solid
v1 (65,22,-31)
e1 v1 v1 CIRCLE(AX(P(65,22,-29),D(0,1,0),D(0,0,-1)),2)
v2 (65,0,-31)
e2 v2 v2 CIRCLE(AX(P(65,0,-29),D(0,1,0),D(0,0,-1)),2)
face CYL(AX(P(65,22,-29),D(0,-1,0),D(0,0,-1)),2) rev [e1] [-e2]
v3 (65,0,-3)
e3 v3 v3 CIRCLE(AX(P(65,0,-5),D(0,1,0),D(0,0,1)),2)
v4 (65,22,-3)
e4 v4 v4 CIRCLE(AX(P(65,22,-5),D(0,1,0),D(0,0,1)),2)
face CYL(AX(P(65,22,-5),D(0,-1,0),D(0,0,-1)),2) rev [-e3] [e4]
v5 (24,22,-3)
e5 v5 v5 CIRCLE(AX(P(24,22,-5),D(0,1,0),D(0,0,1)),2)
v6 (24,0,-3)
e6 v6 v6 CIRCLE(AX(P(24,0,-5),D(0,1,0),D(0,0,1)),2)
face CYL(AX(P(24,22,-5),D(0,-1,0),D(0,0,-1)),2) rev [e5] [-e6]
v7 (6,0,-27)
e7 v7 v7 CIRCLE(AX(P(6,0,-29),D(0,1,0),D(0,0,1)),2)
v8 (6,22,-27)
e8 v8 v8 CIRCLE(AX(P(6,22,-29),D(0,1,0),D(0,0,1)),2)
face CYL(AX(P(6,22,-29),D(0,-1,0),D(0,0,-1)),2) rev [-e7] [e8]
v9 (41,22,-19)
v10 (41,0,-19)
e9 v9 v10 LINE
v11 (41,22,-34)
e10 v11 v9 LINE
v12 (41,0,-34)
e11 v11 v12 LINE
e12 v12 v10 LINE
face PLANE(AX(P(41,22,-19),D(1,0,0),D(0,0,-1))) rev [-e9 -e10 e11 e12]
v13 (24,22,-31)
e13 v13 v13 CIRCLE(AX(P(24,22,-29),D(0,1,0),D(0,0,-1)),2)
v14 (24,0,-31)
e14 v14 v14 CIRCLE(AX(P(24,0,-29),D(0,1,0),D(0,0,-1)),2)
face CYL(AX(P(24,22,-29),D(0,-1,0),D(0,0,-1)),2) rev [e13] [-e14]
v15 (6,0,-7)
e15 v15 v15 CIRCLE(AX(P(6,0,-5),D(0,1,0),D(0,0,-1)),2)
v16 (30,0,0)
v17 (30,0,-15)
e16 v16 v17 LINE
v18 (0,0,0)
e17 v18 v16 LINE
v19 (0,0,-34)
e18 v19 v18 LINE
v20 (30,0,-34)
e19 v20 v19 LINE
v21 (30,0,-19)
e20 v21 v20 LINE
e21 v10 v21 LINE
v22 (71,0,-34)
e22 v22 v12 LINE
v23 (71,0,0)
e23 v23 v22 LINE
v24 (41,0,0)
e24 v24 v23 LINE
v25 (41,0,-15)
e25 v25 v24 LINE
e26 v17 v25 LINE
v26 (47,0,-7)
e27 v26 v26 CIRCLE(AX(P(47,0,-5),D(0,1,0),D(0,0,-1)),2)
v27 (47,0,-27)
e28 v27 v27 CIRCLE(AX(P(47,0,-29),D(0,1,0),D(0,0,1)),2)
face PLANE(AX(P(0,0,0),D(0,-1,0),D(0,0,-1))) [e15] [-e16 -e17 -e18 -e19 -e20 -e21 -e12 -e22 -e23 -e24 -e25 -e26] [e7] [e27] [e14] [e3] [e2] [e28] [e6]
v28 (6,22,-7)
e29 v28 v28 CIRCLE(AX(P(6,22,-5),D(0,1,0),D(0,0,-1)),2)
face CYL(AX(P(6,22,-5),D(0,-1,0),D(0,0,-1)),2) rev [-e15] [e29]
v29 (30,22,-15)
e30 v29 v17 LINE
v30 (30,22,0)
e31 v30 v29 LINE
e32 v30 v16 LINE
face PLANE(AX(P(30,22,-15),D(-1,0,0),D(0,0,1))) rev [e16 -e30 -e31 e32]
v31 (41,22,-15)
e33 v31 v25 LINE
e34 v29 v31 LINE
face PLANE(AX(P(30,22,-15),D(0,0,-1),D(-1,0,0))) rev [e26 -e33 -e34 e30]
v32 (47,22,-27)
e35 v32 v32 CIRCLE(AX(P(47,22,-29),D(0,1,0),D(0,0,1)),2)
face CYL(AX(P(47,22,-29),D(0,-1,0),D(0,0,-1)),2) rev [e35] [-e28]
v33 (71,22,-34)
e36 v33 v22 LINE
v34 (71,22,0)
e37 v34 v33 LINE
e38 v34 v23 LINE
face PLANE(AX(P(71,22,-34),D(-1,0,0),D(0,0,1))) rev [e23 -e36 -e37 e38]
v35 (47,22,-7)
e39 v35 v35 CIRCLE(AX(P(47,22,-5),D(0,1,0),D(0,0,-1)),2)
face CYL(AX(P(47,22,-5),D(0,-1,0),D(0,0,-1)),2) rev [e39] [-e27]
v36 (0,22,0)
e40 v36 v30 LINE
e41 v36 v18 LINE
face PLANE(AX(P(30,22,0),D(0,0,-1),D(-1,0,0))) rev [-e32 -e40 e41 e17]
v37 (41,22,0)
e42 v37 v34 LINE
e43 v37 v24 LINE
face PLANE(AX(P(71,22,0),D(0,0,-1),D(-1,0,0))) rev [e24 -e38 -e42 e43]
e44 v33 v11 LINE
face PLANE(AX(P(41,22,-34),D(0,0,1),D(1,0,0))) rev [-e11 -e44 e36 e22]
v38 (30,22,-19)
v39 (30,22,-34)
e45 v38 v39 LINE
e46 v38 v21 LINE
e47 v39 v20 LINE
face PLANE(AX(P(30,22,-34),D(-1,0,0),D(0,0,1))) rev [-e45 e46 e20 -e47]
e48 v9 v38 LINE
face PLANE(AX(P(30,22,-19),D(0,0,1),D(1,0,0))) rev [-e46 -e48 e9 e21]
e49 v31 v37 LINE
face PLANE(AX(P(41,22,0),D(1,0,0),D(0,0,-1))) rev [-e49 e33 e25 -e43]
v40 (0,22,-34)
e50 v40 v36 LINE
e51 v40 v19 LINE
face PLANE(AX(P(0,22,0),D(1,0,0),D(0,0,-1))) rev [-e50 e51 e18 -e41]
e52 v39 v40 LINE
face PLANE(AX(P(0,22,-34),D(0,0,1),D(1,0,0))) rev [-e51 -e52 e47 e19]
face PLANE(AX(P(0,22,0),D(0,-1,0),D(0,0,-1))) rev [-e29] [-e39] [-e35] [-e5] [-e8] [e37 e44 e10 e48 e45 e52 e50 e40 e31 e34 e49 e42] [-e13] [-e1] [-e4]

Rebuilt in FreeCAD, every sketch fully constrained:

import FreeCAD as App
import Part
import Sketcher
from FreeCAD import Vector
Q = App.Units.Quantity

doc = App.newDocument("Part")
body = doc.addObject("PartDesign::Body", "Body")

sketch1 = doc.addObject("Sketcher::SketchObject", "Sketch")
body.addObject(sketch1)
sketch1.AttachmentSupport = (doc.XZ_Plane, [""])
sketch1.MapMode = "FlatFace"
sketch1.addGeometry(Part.LineSegment(Vector(0, -34, 0), Vector(0, 0, 0)), False)
sketch1.addGeometry(Part.LineSegment(Vector(0, 0, 0), Vector(30, 0, 0)), False)
sketch1.addGeometry(Part.LineSegment(Vector(30, 0, 0), Vector(30, -15, 0)), False)
sketch1.addGeometry(Part.LineSegment(Vector(30, -15, 0), Vector(41, -15, 0)), False)
sketch1.addGeometry(Part.LineSegment(Vector(41, -15, 0), Vector(41, 0, 0)), False)
sketch1.addGeometry(Part.LineSegment(Vector(41, 0, 0), Vector(71, 0, 0)), False)
sketch1.addGeometry(Part.LineSegment(Vector(71, 0, 0), Vector(71, -34, 0)), False)
sketch1.addGeometry(Part.LineSegment(Vector(71, -34, 0), Vector(41, -34, 0)), False)
sketch1.addGeometry(Part.LineSegment(Vector(41, -34, 0), Vector(41, -19, 0)), False)
sketch1.addGeometry(Part.LineSegment(Vector(41, -19, 0), Vector(30, -19, 0)), False)
sketch1.addGeometry(Part.LineSegment(Vector(30, -19, 0), Vector(30, -34, 0)), False)
sketch1.addGeometry(Part.LineSegment(Vector(30, -34, 0), Vector(0, -34, 0)), False)
sketch1.addGeometry(Part.Circle(Vector(65, -5, 0), Vector(0, 0, 1), 2), False)
sketch1.addGeometry(Part.Circle(Vector(47, -5, 0), Vector(0, 0, 1), 2), False)
sketch1.addGeometry(Part.Circle(Vector(24, -5, 0), Vector(0, 0, 1), 2), False)
sketch1.addGeometry(Part.Circle(Vector(6, -5, 0), Vector(0, 0, 1), 2), False)
sketch1.addGeometry(Part.Circle(Vector(65, -29, 0), Vector(0, 0, 1), 2), False)
sketch1.addGeometry(Part.Circle(Vector(47, -29, 0), Vector(0, 0, 1), 2), False)
sketch1.addGeometry(Part.Circle(Vector(24, -29, 0), Vector(0, 0, 1), 2), False)
sketch1.addGeometry(Part.Circle(Vector(6, -29, 0), Vector(0, 0, 1), 2), False)
sketch1.addConstraint(Sketcher.Constraint("Coincident", 0, 2, 1, 1))
sketch1.addConstraint(Sketcher.Constraint("Coincident", 1, 2, 2, 1))
sketch1.addConstraint(Sketcher.Constraint("Coincident", 2, 2, 3, 1))
sketch1.addConstraint(Sketcher.Constraint("Coincident", 3, 2, 4, 1))
sketch1.addConstraint(Sketcher.Constraint("Coincident", 4, 2, 5, 1))
sketch1.addConstraint(Sketcher.Constraint("Coincident", 5, 2, 6, 1))
sketch1.addConstraint(Sketcher.Constraint("Coincident", 6, 2, 7, 1))
sketch1.addConstraint(Sketcher.Constraint("Coincident", 7, 2, 8, 1))
sketch1.addConstraint(Sketcher.Constraint("Coincident", 8, 2, 9, 1))
sketch1.addConstraint(Sketcher.Constraint("Coincident", 9, 2, 10, 1))
sketch1.addConstraint(Sketcher.Constraint("Coincident", 10, 2, 11, 1))
sketch1.addConstraint(Sketcher.Constraint("Coincident", 11, 2, 0, 1))
sketch1.addConstraint(Sketcher.Constraint("Vertical", 0))
sketch1.addConstraint(Sketcher.Constraint("Horizontal", 1))
sketch1.addConstraint(Sketcher.Constraint("Vertical", 2))
sketch1.addConstraint(Sketcher.Constraint("Horizontal", 3))
sketch1.addConstraint(Sketcher.Constraint("Vertical", 4))
sketch1.addConstraint(Sketcher.Constraint("Horizontal", 5))
sketch1.addConstraint(Sketcher.Constraint("Vertical", 6))
sketch1.addConstraint(Sketcher.Constraint("Horizontal", 7))
sketch1.addConstraint(Sketcher.Constraint("Vertical", 8))
sketch1.addConstraint(Sketcher.Constraint("Horizontal", 9))
sketch1.addConstraint(Sketcher.Constraint("Vertical", 10))
sketch1.addConstraint(Sketcher.Constraint("Horizontal", 11))
sketch1.addConstraint(Sketcher.Constraint("Coincident", 0, 2, -1, 1))
sketch1.addConstraint(Sketcher.Constraint("Equal", 12, 13))
sketch1.addConstraint(Sketcher.Constraint("Equal", 13, 14))
sketch1.addConstraint(Sketcher.Constraint("Equal", 14, 15))
sketch1.addConstraint(Sketcher.Constraint("Equal", 15, 16))
sketch1.addConstraint(Sketcher.Constraint("Equal", 16, 17))
sketch1.addConstraint(Sketcher.Constraint("Equal", 17, 18))
sketch1.addConstraint(Sketcher.Constraint("Equal", 18, 19))
sketch1.addConstraint(Sketcher.Constraint("PointOnObject", 4, 2, -1))
sketch1.addConstraint(Sketcher.Constraint("Horizontal", 12, 3, 13, 3))
sketch1.addConstraint(Sketcher.Constraint("Horizontal", 13, 3, 14, 3))
sketch1.addConstraint(Sketcher.Constraint("Horizontal", 14, 3, 15, 3))
sketch1.addConstraint(Sketcher.Constraint("Horizontal", 16, 3, 17, 3))
sketch1.addConstraint(Sketcher.Constraint("Horizontal", 17, 3, 18, 3))
sketch1.addConstraint(Sketcher.Constraint("Horizontal", 18, 3, 19, 3))
sketch1.addConstraint(Sketcher.Constraint("Horizontal", 7, 2, 10, 2))
sketch1.addConstraint(Sketcher.Constraint("Vertical", 12, 3, 16, 3))
sketch1.addConstraint(Sketcher.Constraint("Vertical", 13, 3, 17, 3))
sketch1.addConstraint(Sketcher.Constraint("Vertical", 14, 3, 18, 3))
sketch1.addConstraint(Sketcher.Constraint("Vertical", 15, 3, 19, 3))
sketch1.addConstraint(Sketcher.Constraint("Vertical", 4, 2, 7, 2))
sketch1.addConstraint(Sketcher.Constraint("Vertical", 2, 2, 9, 2))
sketch1.addConstraint(Sketcher.Constraint("Equal", 1, 5))
sketch1.addConstraint(Sketcher.Constraint("Equal", 4, 8))
sketch1.addConstraint(Sketcher.Constraint("Diameter", 12, Q("4 mm")))
sketch1.addConstraint(Sketcher.Constraint("DistanceX", 1, 1, 1, 2, Q("30 mm")))
sketch1.addConstraint(Sketcher.Constraint("DistanceX", 3, 1, 3, 2, Q("11 mm")))
sketch1.addConstraint(Sketcher.Constraint("DistanceY", 0, 1, 0, 2, Q("34 mm")))
sketch1.addConstraint(Sketcher.Constraint("DistanceY", 2, 2, 2, 1, Q("15 mm")))
sketch1.addConstraint(Sketcher.Constraint("DistanceX", -1, 1, 12, 3, Q("65 mm")))
sketch1.addConstraint(Sketcher.Constraint("DistanceY", 12, 3, -1, 1, Q("5 mm")))
sketch1.addConstraint(Sketcher.Constraint("DistanceX", -1, 1, 13, 3, Q("47 mm")))
sketch1.addConstraint(Sketcher.Constraint("DistanceX", -1, 1, 14, 3, Q("24 mm")))
sketch1.addConstraint(Sketcher.Constraint("DistanceX", -1, 1, 15, 3, Q("6 mm")))
sketch1.addConstraint(Sketcher.Constraint("DistanceY", 16, 3, -1, 1, Q("29 mm")))
pad1 = doc.addObject("PartDesign::Pad", "Pad")
body.addObject(pad1)
pad1.Profile = sketch1
pad1.Length = 22
pad1.Reversed = True

doc.recompute()
